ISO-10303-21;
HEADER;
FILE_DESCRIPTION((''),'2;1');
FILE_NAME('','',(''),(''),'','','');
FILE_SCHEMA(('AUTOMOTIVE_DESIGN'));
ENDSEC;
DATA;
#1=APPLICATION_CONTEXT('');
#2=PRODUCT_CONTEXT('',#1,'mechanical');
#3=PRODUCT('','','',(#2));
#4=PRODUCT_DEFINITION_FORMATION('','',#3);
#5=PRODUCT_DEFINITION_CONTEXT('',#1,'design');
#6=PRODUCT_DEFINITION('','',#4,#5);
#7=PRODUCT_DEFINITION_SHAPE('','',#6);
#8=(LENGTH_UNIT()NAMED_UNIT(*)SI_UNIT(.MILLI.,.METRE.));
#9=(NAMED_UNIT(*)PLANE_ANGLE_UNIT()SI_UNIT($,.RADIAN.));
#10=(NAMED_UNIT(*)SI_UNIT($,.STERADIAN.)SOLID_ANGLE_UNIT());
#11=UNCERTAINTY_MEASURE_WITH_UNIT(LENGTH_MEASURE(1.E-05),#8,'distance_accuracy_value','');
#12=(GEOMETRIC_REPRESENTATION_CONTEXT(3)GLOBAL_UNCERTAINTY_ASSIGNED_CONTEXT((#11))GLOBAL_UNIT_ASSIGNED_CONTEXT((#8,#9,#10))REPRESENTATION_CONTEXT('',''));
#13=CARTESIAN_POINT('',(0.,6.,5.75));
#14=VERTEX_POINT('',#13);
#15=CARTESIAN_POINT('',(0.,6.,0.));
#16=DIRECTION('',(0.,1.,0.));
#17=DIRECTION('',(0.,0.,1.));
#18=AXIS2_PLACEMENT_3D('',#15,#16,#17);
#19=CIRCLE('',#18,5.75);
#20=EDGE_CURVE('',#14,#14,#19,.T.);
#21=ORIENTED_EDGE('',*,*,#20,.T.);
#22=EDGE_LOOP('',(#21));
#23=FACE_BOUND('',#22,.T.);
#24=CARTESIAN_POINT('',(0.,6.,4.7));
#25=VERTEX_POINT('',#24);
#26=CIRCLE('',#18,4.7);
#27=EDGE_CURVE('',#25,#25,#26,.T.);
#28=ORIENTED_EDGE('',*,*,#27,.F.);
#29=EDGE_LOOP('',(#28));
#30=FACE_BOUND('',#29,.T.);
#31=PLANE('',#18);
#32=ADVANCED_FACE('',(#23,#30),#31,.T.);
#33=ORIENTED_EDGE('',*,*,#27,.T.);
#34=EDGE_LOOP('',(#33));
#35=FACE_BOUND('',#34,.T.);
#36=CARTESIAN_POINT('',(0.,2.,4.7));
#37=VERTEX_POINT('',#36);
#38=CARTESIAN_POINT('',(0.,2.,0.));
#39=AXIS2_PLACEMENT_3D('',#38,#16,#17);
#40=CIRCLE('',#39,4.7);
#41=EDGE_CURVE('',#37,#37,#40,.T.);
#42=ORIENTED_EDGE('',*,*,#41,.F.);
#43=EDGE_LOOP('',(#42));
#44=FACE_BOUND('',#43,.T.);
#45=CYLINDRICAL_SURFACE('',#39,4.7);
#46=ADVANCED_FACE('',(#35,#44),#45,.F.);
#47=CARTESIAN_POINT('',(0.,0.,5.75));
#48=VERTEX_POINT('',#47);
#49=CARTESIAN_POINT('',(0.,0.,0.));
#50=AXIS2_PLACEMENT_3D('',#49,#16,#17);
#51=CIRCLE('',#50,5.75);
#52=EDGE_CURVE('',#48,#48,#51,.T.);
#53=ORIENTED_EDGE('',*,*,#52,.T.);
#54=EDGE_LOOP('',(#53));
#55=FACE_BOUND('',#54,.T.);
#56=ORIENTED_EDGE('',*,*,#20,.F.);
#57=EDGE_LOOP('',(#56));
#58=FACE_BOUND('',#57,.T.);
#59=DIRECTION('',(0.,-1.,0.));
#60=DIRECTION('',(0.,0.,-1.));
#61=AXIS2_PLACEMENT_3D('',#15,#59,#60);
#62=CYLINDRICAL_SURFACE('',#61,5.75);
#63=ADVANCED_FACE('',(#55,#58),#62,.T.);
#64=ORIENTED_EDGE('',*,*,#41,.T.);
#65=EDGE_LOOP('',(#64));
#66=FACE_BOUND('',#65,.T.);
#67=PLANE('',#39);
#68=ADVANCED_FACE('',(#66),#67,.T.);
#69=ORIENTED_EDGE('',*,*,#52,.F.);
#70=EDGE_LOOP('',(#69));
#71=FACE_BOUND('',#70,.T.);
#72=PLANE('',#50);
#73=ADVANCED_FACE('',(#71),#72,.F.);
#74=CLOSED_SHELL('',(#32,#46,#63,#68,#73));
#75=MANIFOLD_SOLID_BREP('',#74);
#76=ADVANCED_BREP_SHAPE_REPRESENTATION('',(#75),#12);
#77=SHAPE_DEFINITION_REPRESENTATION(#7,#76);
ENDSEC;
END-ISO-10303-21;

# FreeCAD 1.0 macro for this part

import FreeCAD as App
import Part
import Sketcher

V = App.Vector
Q = App.Units.Quantity

doc = App.newDocument("Part")
body = doc.addObject("PartDesign::Body", "Body")

sketch1 = body.newObject("Sketcher::SketchObject", "Sketch")
sketch1.AttachmentSupport = (doc.getObject("XZ_Plane"), [""])
sketch1.MapMode = "FlatFace"
sketch1.addGeometry(Part.Circle(V(0, 0, 0), V(0, 0, 1), 6), False)
sketch1.addConstraint([
    Sketcher.Constraint("Coincident", 0, 3, -1, 1),
    Sketcher.Constraint("Diameter", 0, Q("11.5 mm")),
])
pad1 = body.newObject("PartDesign::Pad", "Pad")
pad1.Profile = sketch1
pad1.Length = 6
pad1.Reversed = True

sketch2 = body.newObject("Sketcher::SketchObject", "Sketch001")
sketch2.AttachmentSupport = (doc.getObject("XZ_Plane"), [""])
sketch2.MapMode = "FlatFace"
sketch2.AttachmentOffset = App.Placement(V(0, 0, -6), App.Rotation())
sketch2.addGeometry(Part.Circle(V(0, 0, 0), V(0, 0, 1), 4.7), False)
sketch2.addConstraint([
    Sketcher.Constraint("Coincident", 0, 3, -1, 1),
    Sketcher.Constraint("Diameter", 0, Q("9.4 mm")),
])
pocket1 = body.newObject("PartDesign::Pocket", "Pocket")
pocket1.Profile = sketch2
pocket1.Length = 4
pocket1.Reversed = True

doc.recompute()
